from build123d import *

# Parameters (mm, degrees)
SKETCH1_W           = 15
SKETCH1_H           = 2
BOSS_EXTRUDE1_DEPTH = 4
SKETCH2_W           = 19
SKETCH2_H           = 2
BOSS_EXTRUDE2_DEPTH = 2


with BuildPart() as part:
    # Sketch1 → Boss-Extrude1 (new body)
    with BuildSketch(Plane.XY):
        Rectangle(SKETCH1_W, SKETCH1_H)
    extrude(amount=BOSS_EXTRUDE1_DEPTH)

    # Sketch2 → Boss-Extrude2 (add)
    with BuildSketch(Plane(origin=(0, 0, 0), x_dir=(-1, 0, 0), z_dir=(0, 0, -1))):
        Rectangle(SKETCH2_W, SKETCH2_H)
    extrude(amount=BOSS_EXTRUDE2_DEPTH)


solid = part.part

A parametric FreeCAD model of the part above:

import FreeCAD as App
import Part
import Sketcher
from FreeCAD import Vector
Q = App.Units.Quantity


def add_polygon(sketch, points):
    """Adds a closed chain of lines whose ends are joined by coincident constraints."""
    first, n = sketch.GeometryCount, len(points)
    for a, b in zip(points, points[1:] + points[:1]):
        sketch.addGeometry(Part.LineSegment(App.Vector(*a, 0), App.Vector(*b, 0)), False)
    for i in range(n):
        sketch.addConstraint(Sketcher.Constraint("Coincident", first + i, 2, first + (i + 1) % n, 1))

doc = App.newDocument("Part")
body = doc.addObject("PartDesign::Body", "Body")

# Sketch on XY plane
sketch1 = body.newObject("Sketcher::SketchObject", "Sketch")
sketch1.AttachmentSupport = (doc.getObject("XY_Plane"), [""])
sketch1.MapMode = "FlatFace"
add_polygon(sketch1, [(-7.5, 1), (-7.5, -1), (7.5, -1), (7.5, 1)])  # lines 0-3
sketch1.addConstraint([
    Sketcher.Constraint("Vertical", 0),
    Sketcher.Constraint("Horizontal", 1),
    Sketcher.Constraint("Vertical", 2),
    Sketcher.Constraint("Horizontal", 3),
    Sketcher.Constraint("Symmetric", 0, 2, 2, 2, -1, 1),
    Sketcher.Constraint("DistanceX", 1, 1, 1, 2, Q("15 mm")),
    Sketcher.Constraint("DistanceY", 0, 2, 0, 1, Q("2 mm")),
])
pad1 = body.newObject("PartDesign::Pad", "Pad")
pad1.Profile = sketch1
pad1.Length = 4

# Sketch on XY plane
sketch2 = body.newObject("Sketcher::SketchObject", "Sketch001")
sketch2.AttachmentSupport = (doc.getObject("XY_Plane"), [""])
sketch2.MapMode = "FlatFace"
add_polygon(sketch2, [(9.5, 1), (9.5, -1), (-9.5, -1), (-9.5, 1)])  # lines 0-3
sketch2.addConstraint([
    Sketcher.Constraint("Vertical", 0),
    Sketcher.Constraint("Horizontal", 1),
    Sketcher.Constraint("Vertical", 2),
    Sketcher.Constraint("Horizontal", 3),
    Sketcher.Constraint("Symmetric", 0, 2, 2, 2, -1, 1),
    Sketcher.Constraint("DistanceX", 1, 2, 1, 1, Q("19 mm")),
    Sketcher.Constraint("DistanceY", 0, 2, 0, 1, Q("2 mm")),
])
pad2 = body.newObject("PartDesign::Pad", "Pad001")
pad2.Profile = sketch2
pad2.Length = 2
pad2.Reversed = True

doc.recompute()
